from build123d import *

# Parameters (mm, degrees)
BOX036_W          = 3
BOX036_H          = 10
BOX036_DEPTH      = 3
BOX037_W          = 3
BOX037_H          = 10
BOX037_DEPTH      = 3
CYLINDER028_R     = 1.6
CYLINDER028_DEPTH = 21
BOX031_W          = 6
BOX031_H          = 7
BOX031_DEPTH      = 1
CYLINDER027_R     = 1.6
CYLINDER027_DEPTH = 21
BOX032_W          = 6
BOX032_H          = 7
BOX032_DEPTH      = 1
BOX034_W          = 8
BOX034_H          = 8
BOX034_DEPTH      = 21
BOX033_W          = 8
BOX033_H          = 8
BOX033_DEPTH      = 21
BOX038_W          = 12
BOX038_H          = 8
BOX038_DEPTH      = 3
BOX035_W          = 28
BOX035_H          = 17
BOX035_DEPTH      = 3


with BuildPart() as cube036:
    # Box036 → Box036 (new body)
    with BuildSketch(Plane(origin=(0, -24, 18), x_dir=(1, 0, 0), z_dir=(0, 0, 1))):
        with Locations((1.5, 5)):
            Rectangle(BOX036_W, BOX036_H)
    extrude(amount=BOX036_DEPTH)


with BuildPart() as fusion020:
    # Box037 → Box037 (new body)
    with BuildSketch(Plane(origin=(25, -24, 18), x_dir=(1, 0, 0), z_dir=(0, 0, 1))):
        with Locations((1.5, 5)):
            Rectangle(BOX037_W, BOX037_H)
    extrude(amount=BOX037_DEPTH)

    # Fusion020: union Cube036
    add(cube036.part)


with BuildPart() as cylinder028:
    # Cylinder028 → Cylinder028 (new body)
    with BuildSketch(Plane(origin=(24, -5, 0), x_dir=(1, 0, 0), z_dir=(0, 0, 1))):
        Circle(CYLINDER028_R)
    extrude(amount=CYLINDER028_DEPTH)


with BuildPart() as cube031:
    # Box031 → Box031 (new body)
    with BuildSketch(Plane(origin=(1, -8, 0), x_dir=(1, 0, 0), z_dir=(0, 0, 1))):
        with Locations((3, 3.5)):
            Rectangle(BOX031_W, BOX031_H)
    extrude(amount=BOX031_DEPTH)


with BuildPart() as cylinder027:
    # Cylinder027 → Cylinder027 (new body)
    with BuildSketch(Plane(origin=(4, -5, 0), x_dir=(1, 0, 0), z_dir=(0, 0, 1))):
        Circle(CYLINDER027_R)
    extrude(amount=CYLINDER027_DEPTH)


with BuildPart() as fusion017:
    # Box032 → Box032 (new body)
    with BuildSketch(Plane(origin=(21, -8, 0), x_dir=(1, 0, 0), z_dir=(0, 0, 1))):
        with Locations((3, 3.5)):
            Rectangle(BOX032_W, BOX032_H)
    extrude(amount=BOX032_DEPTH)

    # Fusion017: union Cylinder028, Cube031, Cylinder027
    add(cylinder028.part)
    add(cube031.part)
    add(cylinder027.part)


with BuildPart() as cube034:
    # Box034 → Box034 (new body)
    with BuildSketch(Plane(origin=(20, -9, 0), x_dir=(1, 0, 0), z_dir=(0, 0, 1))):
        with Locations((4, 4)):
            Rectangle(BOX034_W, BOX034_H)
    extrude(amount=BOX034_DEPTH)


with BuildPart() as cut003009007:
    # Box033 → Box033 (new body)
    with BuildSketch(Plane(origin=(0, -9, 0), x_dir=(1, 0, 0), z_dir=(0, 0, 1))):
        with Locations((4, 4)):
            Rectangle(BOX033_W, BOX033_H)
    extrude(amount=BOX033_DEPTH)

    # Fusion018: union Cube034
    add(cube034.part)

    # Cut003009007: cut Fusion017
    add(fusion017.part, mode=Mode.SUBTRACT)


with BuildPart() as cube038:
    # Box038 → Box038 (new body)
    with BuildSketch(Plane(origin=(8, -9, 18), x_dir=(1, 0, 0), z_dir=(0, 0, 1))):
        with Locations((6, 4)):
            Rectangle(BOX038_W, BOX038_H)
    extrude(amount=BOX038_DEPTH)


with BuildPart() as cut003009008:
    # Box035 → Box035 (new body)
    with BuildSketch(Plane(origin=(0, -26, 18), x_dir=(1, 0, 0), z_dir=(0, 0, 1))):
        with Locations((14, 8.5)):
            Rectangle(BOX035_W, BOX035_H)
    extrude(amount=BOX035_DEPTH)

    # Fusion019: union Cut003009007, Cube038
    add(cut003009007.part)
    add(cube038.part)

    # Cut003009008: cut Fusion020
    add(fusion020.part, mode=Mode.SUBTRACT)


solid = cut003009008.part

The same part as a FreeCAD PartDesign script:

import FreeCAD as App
import Part
import Sketcher

V = App.Vector


def add_polygon(sketch, points):
    """Adds a closed chain of lines whose ends are joined by coincident constraints."""
    first, n = sketch.GeometryCount, len(points)
    for a, b in zip(points, points[1:] + points[:1]):
        sketch.addGeometry(Part.LineSegment(App.Vector(*a, 0), App.Vector(*b, 0)), False)
    for i in range(n):
        sketch.addConstraint(Sketcher.Constraint("Coincident", first + i, 2, first + (i + 1) % n, 1))

doc = App.newDocument("Part")
params = doc.addObject("Spreadsheet::Sheet", "Params")
for row, (alias, value) in enumerate([
    ("sketch1_width", "3 mm"),
    ("sketch1_height", "10 mm"),
    ("pad1_length", "3 mm"),
    ("sketch2_width", "3 mm"),
    ("sketch2_height", "10 mm"),
    ("pad2_length", "3 mm"),
    ("sketch3_diameter", "3.2 mm"),
    ("pad3_length", "21 mm"),
    ("sketch4_width", "6 mm"),
    ("sketch4_height", "7 mm"),
    ("pad4_length", "1 mm"),
    ("sketch5_diameter", "3.2 mm"),
    ("pad5_length", "21 mm"),
    ("sketch6_width", "6 mm"),
    ("sketch6_height", "7 mm"),
    ("pad6_length", "1 mm"),
    ("sketch7_width", "8 mm"),
    ("pad7_length", "21 mm"),
    ("sketch8_width", "8 mm"),
    ("pad8_length", "21 mm"),
    ("sketch9_width", "12 mm"),
    ("sketch9_height", "8 mm"),
    ("pad9_length", "3 mm"),
    ("sketch10_width", "28 mm"),
    ("sketch10_height", "17 mm"),
    ("pad10_length", "3 mm"),
], start=1):
    params.set(f"A{row}", alias)
    params.set(f"B{row}", "=" + value)
    params.setAlias(f"B{row}", alias)

body = doc.addObject("PartDesign::Body", "Body")

# Sketch on XY plane
sketch1 = body.newObject("Sketcher::SketchObject", "Sketch")
sketch1.AttachmentSupport = (doc.getObject("XY_Plane"), [""])
sketch1.MapMode = "FlatFace"
sketch1.AttachmentOffset = App.Placement(V(0, 0, 18), App.Rotation())
add_polygon(sketch1, [(0, -14), (0, -24), (3, -24), (3, -14)])  # lines 0-3
sketch1.addConstraint(Sketcher.Constraint("Vertical", 0))
sketch1.addConstraint(Sketcher.Constraint("Horizontal", 1))
sketch1.addConstraint(Sketcher.Constraint("Vertical", 2))
sketch1.addConstraint(Sketcher.Constraint("Horizontal", 3))
sketch1.addConstraint(Sketcher.Constraint("PointOnObject", 0, 2, -2))
sketch1.addConstraint(Sketcher.Constraint("DistanceX", 1, 1, 1, 2, 3.0))
sketch1.addConstraint(Sketcher.Constraint("DistanceY", 0, 2, 0, 1, 10.0))
sketch1.addConstraint(Sketcher.Constraint("DistanceY", 0, 2, -1, 1, 24.0))
sketch1.setExpression("Constraints[9]", "Params.sketch1_width")
sketch1.setExpression("Constraints[10]", "Params.sketch1_height")
pad1 = body.newObject("PartDesign::Pad", "Pad")
pad1.Profile = sketch1
pad1.setExpression("Length", "Params.pad1_length")
body2 = doc.addObject("PartDesign::Body", "Body001")
body2.AllowCompound = True

# Sketch on XY plane
sketch2 = body2.newObject("Sketcher::SketchObject", "Sketch001")
sketch2.AttachmentSupport = (doc.getObject("XY_Plane001"), [""])
sketch2.MapMode = "FlatFace"
sketch2.AttachmentOffset = App.Placement(V(0, 0, 18), App.Rotation())
add_polygon(sketch2, [(25, -14), (25, -24), (28, -24), (28, -14)])  # lines 0-3
sketch2.addConstraint(Sketcher.Constraint("Vertical", 0))
sketch2.addConstraint(Sketcher.Constraint("Horizontal", 1))
sketch2.addConstraint(Sketcher.Constraint("Vertical", 2))
sketch2.addConstraint(Sketcher.Constraint("Horizontal", 3))
sketch2.addConstraint(Sketcher.Constraint("DistanceX", 1, 1, 1, 2, 3.0))
sketch2.addConstraint(Sketcher.Constraint("DistanceY", 0, 2, 0, 1, 10.0))
sketch2.addConstraint(Sketcher.Constraint("DistanceX", -1, 1, 0, 2, 25.0))
sketch2.addConstraint(Sketcher.Constraint("DistanceY", 0, 2, -1, 1, 24.0))
sketch2.setExpression("Constraints[8]", "Params.sketch2_width")
sketch2.setExpression("Constraints[9]", "Params.sketch2_height")
pad2 = body2.newObject("PartDesign::Pad", "Pad001")
pad2.Profile = sketch2
pad2.setExpression("Length", "Params.pad2_length")
doc.recompute()

boolean = body2.newObject("PartDesign::Boolean", "Boolean")
boolean.Type = "Fuse"
boolean.addObjects([body])
body3 = doc.addObject("PartDesign::Body", "Body002")

# Sketch on XY plane
sketch3 = body3.newObject("Sketcher::SketchObject", "Sketch002")
sketch3.AttachmentSupport = (doc.getObject("XY_Plane002"), [""])
sketch3.MapMode = "FlatFace"
sketch3.addGeometry(Part.Circle(V(24, -5, 0), V(0, 0, 1), 1.6), False)
sketch3.addConstraint(Sketcher.Constraint("Diameter", 0, 3.2))
sketch3.addConstraint(Sketcher.Constraint("DistanceX", -1, 1, 0, 3, 24.0))
sketch3.addConstraint(Sketcher.Constraint("DistanceY", 0, 3, -1, 1, 5.0))
sketch3.setExpression("Constraints[0]", "Params.sketch3_diameter")
pad3 = body3.newObject("PartDesign::Pad", "Pad002")
pad3.Profile = sketch3
pad3.setExpression("Length", "Params.pad3_length")
body4 = doc.addObject("PartDesign::Body", "Body003")

# Sketch on XY plane
sketch4 = body4.newObject("Sketcher::SketchObject", "Sketch003")
sketch4.AttachmentSupport = (doc.getObject("XY_Plane003"), [""])
sketch4.MapMode = "FlatFace"
add_polygon(sketch4, [(1, -1), (1, -8), (7, -8), (7, -1)])  # lines 0-3
sketch4.addConstraint(Sketcher.Constraint("Vertical", 0))
sketch4.addConstraint(Sketcher.Constraint("Horizontal", 1))
sketch4.addConstraint(Sketcher.Constraint("Vertical", 2))
sketch4.addConstraint(Sketcher.Constraint("Horizontal", 3))
sketch4.addConstraint(Sketcher.Constraint("DistanceX", 1, 1, 1, 2, 6.0))
sketch4.addConstraint(Sketcher.Constraint("DistanceY", 0, 2, 0, 1, 7.0))
sketch4.addConstraint(Sketcher.Constraint("DistanceX", -1, 1, 0, 2, 1.0))
sketch4.addConstraint(Sketcher.Constraint("DistanceY", 0, 2, -1, 1, 8.0))
sketch4.setExpression("Constraints[8]", "Params.sketch4_width")
sketch4.setExpression("Constraints[9]", "Params.sketch4_height")
pad4 = body4.newObject("PartDesign::Pad", "Pad003")
pad4.Profile = sketch4
pad4.setExpression("Length", "Params.pad4_length")
body5 = doc.addObject("PartDesign::Body", "Body004")

# Sketch on XY plane
sketch5 = body5.newObject("Sketcher::SketchObject", "Sketch004")
sketch5.AttachmentSupport = (doc.getObject("XY_Plane004"), [""])
sketch5.MapMode = "FlatFace"
sketch5.addGeometry(Part.Circle(V(4, -5, 0), V(0, 0, 1), 1.6), False)
sketch5.addConstraint(Sketcher.Constraint("Diameter", 0, 3.2))
sketch5.addConstraint(Sketcher.Constraint("DistanceX", -1, 1, 0, 3, 4.0))
sketch5.addConstraint(Sketcher.Constraint("DistanceY", 0, 3, -1, 1, 5.0))
sketch5.setExpression("Constraints[0]", "Params.sketch5_diameter")
pad5 = body5.newObject("PartDesign::Pad", "Pad004")
pad5.Profile = sketch5
pad5.setExpression("Length", "Params.pad5_length")
body6 = doc.addObject("PartDesign::Body", "Body005")
body6.AllowCompound = True

# Sketch on XY plane
sketch6 = body6.newObject("Sketcher::SketchObject", "Sketch005")
sketch6.AttachmentSupport = (doc.getObject("XY_Plane005"), [""])
sketch6.MapMode = "FlatFace"
add_polygon(sketch6, [(21, -1), (21, -8), (27, -8), (27, -1)])  # lines 0-3
sketch6.addConstraint(Sketcher.Constraint("Vertical", 0))
sketch6.addConstraint(Sketcher.Constraint("Horizontal", 1))
sketch6.addConstraint(Sketcher.Constraint("Vertical", 2))
sketch6.addConstraint(Sketcher.Constraint("Horizontal", 3))
sketch6.addConstraint(Sketcher.Constraint("DistanceX", 1, 1, 1, 2, 6.0))
sketch6.addConstraint(Sketcher.Constraint("DistanceY", 0, 2, 0, 1, 7.0))
sketch6.addConstraint(Sketcher.Constraint("DistanceX", -1, 1, 0, 2, 21.0))
sketch6.addConstraint(Sketcher.Constraint("DistanceY", 0, 2, -1, 1, 8.0))
sketch6.setExpression("Constraints[8]", "Params.sketch6_width")
sketch6.setExpression("Constraints[9]", "Params.sketch6_height")
pad6 = body6.newObject("PartDesign::Pad", "Pad005")
pad6.Profile = sketch6
pad6.setExpression("Length", "Params.pad6_length")
doc.recompute()

boolean2 = body6.newObject("PartDesign::Boolean", "Boolean001")
boolean2.Type = "Fuse"
boolean2.addObjects([body3])
doc.recompute()

boolean3 = body6.newObject("PartDesign::Boolean", "Boolean002")
boolean3.Type = "Fuse"
boolean3.addObjects([body4])
doc.recompute()

boolean4 = body6.newObject("PartDesign::Boolean", "Boolean003")
boolean4.Type = "Fuse"
boolean4.addObjects([body5])
body7 = doc.addObject("PartDesign::Body", "Body006")

# Sketch on XY plane
sketch7 = body7.newObject("Sketcher::SketchObject", "Sketch006")
sketch7.AttachmentSupport = (doc.getObject("XY_Plane006"), [""])
sketch7.MapMode = "FlatFace"
add_polygon(sketch7, [(20, -1), (20, -9), (28, -9), (28, -1)])  # lines 0-3
sketch7.addConstraint(Sketcher.Constraint("Vertical", 0))
sketch7.addConstraint(Sketcher.Constraint("Horizontal", 1))
sketch7.addConstraint(Sketcher.Constraint("Vertical", 2))
sketch7.addConstraint(Sketcher.Constraint("Horizontal", 3))
sketch7.addConstraint(Sketcher.Constraint("Equal", 3, 0))
sketch7.addConstraint(Sketcher.Constraint("DistanceX", 1, 1, 1, 2, 8.0))
sketch7.addConstraint(Sketcher.Constraint("DistanceX", -1, 1, 0, 2, 20.0))
sketch7.addConstraint(Sketcher.Constraint("DistanceY", 0, 2, -1, 1, 9.0))
sketch7.setExpression("Constraints[9]", "Params.sketch7_width")
pad7 = body7.newObject("PartDesign::Pad", "Pad006")
pad7.Profile = sketch7
pad7.setExpression("Length", "Params.pad7_length")
body8 = doc.addObject("PartDesign::Body", "Body007")
body8.AllowCompound = True

# Sketch on XY plane
sketch8 = body8.newObject("Sketcher::SketchObject", "Sketch007")
sketch8.AttachmentSupport = (doc.getObject("XY_Plane007"), [""])
sketch8.MapMode = "FlatFace"
add_polygon(sketch8, [(0, -1), (0, -9), (8, -9), (8, -1)])  # lines 0-3
sketch8.addConstraint(Sketcher.Constraint("Vertical", 0))
sketch8.addConstraint(Sketcher.Constraint("Horizontal", 1))
sketch8.addConstraint(Sketcher.Constraint("Vertical", 2))
sketch8.addConstraint(Sketcher.Constraint("Horizontal", 3))
sketch8.addConstraint(Sketcher.Constraint("PointOnObject", 0, 2, -2))
sketch8.addConstraint(Sketcher.Constraint("Equal", 3, 0))
sketch8.addConstraint(Sketcher.Constraint("DistanceX", 1, 1, 1, 2, 8.0))
sketch8.addConstraint(Sketcher.Constraint("DistanceY", 0, 2, -1, 1, 9.0))
sketch8.setExpression("Constraints[10]", "Params.sketch8_width")
pad8 = body8.newObject("PartDesign::Pad", "Pad007")
pad8.Profile = sketch8
pad8.setExpression("Length", "Params.pad8_length")
doc.recompute()

boolean5 = body8.newObject("PartDesign::Boolean", "Boolean004")
boolean5.Type = "Fuse"
boolean5.addObjects([body7])
doc.recompute()

boolean6 = body8.newObject("PartDesign::Boolean", "Boolean005")
boolean6.Type = "Cut"
boolean6.addObjects([body6])
body9 = doc.addObject("PartDesign::Body", "Body008")

# Sketch on XY plane
sketch9 = body9.newObject("Sketcher::SketchObject", "Sketch008")
sketch9.AttachmentSupport = (doc.getObject("XY_Plane008"), [""])
sketch9.MapMode = "FlatFace"
sketch9.AttachmentOffset = App.Placement(V(0, 0, 18), App.Rotation())
add_polygon(sketch9, [(8, -1), (8, -9), (20, -9), (20, -1)])  # lines 0-3
sketch9.addConstraint(Sketcher.Constraint("Vertical", 0))
sketch9.addConstraint(Sketcher.Constraint("Horizontal", 1))
sketch9.addConstraint(Sketcher.Constraint("Vertical", 2))
sketch9.addConstraint(Sketcher.Constraint("Horizontal", 3))
sketch9.addConstraint(Sketcher.Constraint("DistanceX", 1, 1, 1, 2, 12.0))
sketch9.addConstraint(Sketcher.Constraint("DistanceY", 0, 2, 0, 1, 8.0))
sketch9.addConstraint(Sketcher.Constraint("DistanceX", -1, 1, 0, 2, 8.0))
sketch9.addConstraint(Sketcher.Constraint("DistanceY", 0, 2, -1, 1, 9.0))
sketch9.setExpression("Constraints[8]", "Params.sketch9_width")
sketch9.setExpression("Constraints[9]", "Params.sketch9_height")
pad9 = body9.newObject("PartDesign::Pad", "Pad008")
pad9.Profile = sketch9
pad9.setExpression("Length", "Params.pad9_length")
body10 = doc.addObject("PartDesign::Body", "Body009")

# Sketch on XY plane
sketch10 = body10.newObject("Sketcher::SketchObject", "Sketch009")
sketch10.AttachmentSupport = (doc.getObject("XY_Plane009"), [""])
sketch10.MapMode = "FlatFace"
sketch10.AttachmentOffset = App.Placement(V(0, 0, 18), App.Rotation())
add_polygon(sketch10, [(0, -9), (0, -26), (28, -26), (28, -9)])  # lines 0-3
sketch10.addConstraint(Sketcher.Constraint("Vertical", 0))
sketch10.addConstraint(Sketcher.Constraint("Horizontal", 1))
sketch10.addConstraint(Sketcher.Constraint("Vertical", 2))
sketch10.addConstraint(Sketcher.Constraint("Horizontal", 3))
sketch10.addConstraint(Sketcher.Constraint("PointOnObject", 0, 2, -2))
sketch10.addConstraint(Sketcher.Constraint("DistanceX", 1, 1, 1, 2, 28.0))
sketch10.addConstraint(Sketcher.Constraint("DistanceY", 0, 2, 0, 1, 17.0))
sketch10.addConstraint(Sketcher.Constraint("DistanceY", 0, 2, -1, 1, 26.0))
sketch10.setExpression("Constraints[9]", "Params.sketch10_width")
sketch10.setExpression("Constraints[10]", "Params.sketch10_height")
pad10 = body10.newObject("PartDesign::Pad", "Pad009")
pad10.Profile = sketch10
pad10.setExpression("Length", "Params.pad10_length")
doc.recompute()

boolean7 = body10.newObject("PartDesign::Boolean", "Boolean006")
boolean7.Type = "Fuse"
boolean7.addObjects([body8])
doc.recompute()

boolean8 = body10.newObject("PartDesign::Boolean", "Boolean007")
boolean8.Type = "Fuse"
boolean8.addObjects([body9])
doc.recompute()

boolean9 = body10.newObject("PartDesign::Boolean", "Boolean008")
boolean9.Type = "Cut"
boolean9.addObjects([body2])

doc.recompute()
